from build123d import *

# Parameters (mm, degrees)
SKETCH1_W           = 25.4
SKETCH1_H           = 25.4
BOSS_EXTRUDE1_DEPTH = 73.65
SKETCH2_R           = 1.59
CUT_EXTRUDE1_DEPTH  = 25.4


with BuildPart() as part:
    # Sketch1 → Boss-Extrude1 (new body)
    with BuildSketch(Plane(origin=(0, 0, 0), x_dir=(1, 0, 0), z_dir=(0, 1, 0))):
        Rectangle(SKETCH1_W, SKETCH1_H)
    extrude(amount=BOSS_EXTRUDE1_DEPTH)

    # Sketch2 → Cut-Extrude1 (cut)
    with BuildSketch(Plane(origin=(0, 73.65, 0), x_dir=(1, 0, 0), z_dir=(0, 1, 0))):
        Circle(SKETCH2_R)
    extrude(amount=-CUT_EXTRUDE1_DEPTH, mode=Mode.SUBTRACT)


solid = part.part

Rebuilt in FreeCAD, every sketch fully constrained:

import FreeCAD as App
import Part
import Sketcher

V = App.Vector
Q = App.Units.Quantity


def add_polygon(sketch, points):
    """Adds a closed chain of lines whose ends are joined by coincident constraints."""
    first, n = sketch.GeometryCount, len(points)
    for a, b in zip(points, points[1:] + points[:1]):
        sketch.addGeometry(Part.LineSegment(App.Vector(*a, 0), App.Vector(*b, 0)), False)
    for i in range(n):
        sketch.addConstraint(Sketcher.Constraint("Coincident", first + i, 2, first + (i + 1) % n, 1))

doc = App.newDocument("Part")
body = doc.addObject("PartDesign::Body", "Body")

# Sketch on XZ plane
sketch1 = body.newObject("Sketcher::SketchObject", "Sketch")
sketch1.AttachmentSupport = (doc.getObject("XZ_Plane"), [""])
sketch1.MapMode = "FlatFace"
add_polygon(sketch1, [(-13, -13), (-13, 13), (13, 13), (13, -13)])  # lines 0-3
sketch1.addConstraint(Sketcher.Constraint("Vertical", 0))
sketch1.addConstraint(Sketcher.Constraint("Horizontal", 1))
sketch1.addConstraint(Sketcher.Constraint("Vertical", 2))
sketch1.addConstraint(Sketcher.Constraint("Horizontal", 3))
sketch1.addConstraint(Sketcher.Constraint("Symmetric", 0, 2, 2, 2, -1, 1))
sketch1.addConstraint(Sketcher.Constraint("Equal", 3, 0))
sketch1.addConstraint(Sketcher.Constraint("DistanceX", 1, 1, 1, 2, Q("1 in")))
pad1 = body.newObject("PartDesign::Pad", "Pad")
pad1.Profile = sketch1
pad1.Length = 73.65
pad1.Reversed = True

# Sketch on XZ plane
sketch2 = body.newObject("Sketcher::SketchObject", "Sketch001")
sketch2.AttachmentSupport = (doc.getObject("XZ_Plane"), [""])
sketch2.MapMode = "FlatFace"
sketch2.AttachmentOffset = App.Placement(V(0, 0, -73.65), App.Rotation())
sketch2.addGeometry(Part.Circle(V(0, 0, 0), V(0, 0, 1), 1.6), False)
sketch2.addConstraint(Sketcher.Constraint("Coincident", 0, 3, -1, 1))
sketch2.addConstraint(Sketcher.Constraint("Diameter", 0, Q("3.18 mm")))
pocket1 = body.newObject("PartDesign::Pocket", "Pocket")
pocket1.Profile = sketch2
pocket1.Length = Q("1 in")
pocket1.Reversed = True

doc.recompute()
